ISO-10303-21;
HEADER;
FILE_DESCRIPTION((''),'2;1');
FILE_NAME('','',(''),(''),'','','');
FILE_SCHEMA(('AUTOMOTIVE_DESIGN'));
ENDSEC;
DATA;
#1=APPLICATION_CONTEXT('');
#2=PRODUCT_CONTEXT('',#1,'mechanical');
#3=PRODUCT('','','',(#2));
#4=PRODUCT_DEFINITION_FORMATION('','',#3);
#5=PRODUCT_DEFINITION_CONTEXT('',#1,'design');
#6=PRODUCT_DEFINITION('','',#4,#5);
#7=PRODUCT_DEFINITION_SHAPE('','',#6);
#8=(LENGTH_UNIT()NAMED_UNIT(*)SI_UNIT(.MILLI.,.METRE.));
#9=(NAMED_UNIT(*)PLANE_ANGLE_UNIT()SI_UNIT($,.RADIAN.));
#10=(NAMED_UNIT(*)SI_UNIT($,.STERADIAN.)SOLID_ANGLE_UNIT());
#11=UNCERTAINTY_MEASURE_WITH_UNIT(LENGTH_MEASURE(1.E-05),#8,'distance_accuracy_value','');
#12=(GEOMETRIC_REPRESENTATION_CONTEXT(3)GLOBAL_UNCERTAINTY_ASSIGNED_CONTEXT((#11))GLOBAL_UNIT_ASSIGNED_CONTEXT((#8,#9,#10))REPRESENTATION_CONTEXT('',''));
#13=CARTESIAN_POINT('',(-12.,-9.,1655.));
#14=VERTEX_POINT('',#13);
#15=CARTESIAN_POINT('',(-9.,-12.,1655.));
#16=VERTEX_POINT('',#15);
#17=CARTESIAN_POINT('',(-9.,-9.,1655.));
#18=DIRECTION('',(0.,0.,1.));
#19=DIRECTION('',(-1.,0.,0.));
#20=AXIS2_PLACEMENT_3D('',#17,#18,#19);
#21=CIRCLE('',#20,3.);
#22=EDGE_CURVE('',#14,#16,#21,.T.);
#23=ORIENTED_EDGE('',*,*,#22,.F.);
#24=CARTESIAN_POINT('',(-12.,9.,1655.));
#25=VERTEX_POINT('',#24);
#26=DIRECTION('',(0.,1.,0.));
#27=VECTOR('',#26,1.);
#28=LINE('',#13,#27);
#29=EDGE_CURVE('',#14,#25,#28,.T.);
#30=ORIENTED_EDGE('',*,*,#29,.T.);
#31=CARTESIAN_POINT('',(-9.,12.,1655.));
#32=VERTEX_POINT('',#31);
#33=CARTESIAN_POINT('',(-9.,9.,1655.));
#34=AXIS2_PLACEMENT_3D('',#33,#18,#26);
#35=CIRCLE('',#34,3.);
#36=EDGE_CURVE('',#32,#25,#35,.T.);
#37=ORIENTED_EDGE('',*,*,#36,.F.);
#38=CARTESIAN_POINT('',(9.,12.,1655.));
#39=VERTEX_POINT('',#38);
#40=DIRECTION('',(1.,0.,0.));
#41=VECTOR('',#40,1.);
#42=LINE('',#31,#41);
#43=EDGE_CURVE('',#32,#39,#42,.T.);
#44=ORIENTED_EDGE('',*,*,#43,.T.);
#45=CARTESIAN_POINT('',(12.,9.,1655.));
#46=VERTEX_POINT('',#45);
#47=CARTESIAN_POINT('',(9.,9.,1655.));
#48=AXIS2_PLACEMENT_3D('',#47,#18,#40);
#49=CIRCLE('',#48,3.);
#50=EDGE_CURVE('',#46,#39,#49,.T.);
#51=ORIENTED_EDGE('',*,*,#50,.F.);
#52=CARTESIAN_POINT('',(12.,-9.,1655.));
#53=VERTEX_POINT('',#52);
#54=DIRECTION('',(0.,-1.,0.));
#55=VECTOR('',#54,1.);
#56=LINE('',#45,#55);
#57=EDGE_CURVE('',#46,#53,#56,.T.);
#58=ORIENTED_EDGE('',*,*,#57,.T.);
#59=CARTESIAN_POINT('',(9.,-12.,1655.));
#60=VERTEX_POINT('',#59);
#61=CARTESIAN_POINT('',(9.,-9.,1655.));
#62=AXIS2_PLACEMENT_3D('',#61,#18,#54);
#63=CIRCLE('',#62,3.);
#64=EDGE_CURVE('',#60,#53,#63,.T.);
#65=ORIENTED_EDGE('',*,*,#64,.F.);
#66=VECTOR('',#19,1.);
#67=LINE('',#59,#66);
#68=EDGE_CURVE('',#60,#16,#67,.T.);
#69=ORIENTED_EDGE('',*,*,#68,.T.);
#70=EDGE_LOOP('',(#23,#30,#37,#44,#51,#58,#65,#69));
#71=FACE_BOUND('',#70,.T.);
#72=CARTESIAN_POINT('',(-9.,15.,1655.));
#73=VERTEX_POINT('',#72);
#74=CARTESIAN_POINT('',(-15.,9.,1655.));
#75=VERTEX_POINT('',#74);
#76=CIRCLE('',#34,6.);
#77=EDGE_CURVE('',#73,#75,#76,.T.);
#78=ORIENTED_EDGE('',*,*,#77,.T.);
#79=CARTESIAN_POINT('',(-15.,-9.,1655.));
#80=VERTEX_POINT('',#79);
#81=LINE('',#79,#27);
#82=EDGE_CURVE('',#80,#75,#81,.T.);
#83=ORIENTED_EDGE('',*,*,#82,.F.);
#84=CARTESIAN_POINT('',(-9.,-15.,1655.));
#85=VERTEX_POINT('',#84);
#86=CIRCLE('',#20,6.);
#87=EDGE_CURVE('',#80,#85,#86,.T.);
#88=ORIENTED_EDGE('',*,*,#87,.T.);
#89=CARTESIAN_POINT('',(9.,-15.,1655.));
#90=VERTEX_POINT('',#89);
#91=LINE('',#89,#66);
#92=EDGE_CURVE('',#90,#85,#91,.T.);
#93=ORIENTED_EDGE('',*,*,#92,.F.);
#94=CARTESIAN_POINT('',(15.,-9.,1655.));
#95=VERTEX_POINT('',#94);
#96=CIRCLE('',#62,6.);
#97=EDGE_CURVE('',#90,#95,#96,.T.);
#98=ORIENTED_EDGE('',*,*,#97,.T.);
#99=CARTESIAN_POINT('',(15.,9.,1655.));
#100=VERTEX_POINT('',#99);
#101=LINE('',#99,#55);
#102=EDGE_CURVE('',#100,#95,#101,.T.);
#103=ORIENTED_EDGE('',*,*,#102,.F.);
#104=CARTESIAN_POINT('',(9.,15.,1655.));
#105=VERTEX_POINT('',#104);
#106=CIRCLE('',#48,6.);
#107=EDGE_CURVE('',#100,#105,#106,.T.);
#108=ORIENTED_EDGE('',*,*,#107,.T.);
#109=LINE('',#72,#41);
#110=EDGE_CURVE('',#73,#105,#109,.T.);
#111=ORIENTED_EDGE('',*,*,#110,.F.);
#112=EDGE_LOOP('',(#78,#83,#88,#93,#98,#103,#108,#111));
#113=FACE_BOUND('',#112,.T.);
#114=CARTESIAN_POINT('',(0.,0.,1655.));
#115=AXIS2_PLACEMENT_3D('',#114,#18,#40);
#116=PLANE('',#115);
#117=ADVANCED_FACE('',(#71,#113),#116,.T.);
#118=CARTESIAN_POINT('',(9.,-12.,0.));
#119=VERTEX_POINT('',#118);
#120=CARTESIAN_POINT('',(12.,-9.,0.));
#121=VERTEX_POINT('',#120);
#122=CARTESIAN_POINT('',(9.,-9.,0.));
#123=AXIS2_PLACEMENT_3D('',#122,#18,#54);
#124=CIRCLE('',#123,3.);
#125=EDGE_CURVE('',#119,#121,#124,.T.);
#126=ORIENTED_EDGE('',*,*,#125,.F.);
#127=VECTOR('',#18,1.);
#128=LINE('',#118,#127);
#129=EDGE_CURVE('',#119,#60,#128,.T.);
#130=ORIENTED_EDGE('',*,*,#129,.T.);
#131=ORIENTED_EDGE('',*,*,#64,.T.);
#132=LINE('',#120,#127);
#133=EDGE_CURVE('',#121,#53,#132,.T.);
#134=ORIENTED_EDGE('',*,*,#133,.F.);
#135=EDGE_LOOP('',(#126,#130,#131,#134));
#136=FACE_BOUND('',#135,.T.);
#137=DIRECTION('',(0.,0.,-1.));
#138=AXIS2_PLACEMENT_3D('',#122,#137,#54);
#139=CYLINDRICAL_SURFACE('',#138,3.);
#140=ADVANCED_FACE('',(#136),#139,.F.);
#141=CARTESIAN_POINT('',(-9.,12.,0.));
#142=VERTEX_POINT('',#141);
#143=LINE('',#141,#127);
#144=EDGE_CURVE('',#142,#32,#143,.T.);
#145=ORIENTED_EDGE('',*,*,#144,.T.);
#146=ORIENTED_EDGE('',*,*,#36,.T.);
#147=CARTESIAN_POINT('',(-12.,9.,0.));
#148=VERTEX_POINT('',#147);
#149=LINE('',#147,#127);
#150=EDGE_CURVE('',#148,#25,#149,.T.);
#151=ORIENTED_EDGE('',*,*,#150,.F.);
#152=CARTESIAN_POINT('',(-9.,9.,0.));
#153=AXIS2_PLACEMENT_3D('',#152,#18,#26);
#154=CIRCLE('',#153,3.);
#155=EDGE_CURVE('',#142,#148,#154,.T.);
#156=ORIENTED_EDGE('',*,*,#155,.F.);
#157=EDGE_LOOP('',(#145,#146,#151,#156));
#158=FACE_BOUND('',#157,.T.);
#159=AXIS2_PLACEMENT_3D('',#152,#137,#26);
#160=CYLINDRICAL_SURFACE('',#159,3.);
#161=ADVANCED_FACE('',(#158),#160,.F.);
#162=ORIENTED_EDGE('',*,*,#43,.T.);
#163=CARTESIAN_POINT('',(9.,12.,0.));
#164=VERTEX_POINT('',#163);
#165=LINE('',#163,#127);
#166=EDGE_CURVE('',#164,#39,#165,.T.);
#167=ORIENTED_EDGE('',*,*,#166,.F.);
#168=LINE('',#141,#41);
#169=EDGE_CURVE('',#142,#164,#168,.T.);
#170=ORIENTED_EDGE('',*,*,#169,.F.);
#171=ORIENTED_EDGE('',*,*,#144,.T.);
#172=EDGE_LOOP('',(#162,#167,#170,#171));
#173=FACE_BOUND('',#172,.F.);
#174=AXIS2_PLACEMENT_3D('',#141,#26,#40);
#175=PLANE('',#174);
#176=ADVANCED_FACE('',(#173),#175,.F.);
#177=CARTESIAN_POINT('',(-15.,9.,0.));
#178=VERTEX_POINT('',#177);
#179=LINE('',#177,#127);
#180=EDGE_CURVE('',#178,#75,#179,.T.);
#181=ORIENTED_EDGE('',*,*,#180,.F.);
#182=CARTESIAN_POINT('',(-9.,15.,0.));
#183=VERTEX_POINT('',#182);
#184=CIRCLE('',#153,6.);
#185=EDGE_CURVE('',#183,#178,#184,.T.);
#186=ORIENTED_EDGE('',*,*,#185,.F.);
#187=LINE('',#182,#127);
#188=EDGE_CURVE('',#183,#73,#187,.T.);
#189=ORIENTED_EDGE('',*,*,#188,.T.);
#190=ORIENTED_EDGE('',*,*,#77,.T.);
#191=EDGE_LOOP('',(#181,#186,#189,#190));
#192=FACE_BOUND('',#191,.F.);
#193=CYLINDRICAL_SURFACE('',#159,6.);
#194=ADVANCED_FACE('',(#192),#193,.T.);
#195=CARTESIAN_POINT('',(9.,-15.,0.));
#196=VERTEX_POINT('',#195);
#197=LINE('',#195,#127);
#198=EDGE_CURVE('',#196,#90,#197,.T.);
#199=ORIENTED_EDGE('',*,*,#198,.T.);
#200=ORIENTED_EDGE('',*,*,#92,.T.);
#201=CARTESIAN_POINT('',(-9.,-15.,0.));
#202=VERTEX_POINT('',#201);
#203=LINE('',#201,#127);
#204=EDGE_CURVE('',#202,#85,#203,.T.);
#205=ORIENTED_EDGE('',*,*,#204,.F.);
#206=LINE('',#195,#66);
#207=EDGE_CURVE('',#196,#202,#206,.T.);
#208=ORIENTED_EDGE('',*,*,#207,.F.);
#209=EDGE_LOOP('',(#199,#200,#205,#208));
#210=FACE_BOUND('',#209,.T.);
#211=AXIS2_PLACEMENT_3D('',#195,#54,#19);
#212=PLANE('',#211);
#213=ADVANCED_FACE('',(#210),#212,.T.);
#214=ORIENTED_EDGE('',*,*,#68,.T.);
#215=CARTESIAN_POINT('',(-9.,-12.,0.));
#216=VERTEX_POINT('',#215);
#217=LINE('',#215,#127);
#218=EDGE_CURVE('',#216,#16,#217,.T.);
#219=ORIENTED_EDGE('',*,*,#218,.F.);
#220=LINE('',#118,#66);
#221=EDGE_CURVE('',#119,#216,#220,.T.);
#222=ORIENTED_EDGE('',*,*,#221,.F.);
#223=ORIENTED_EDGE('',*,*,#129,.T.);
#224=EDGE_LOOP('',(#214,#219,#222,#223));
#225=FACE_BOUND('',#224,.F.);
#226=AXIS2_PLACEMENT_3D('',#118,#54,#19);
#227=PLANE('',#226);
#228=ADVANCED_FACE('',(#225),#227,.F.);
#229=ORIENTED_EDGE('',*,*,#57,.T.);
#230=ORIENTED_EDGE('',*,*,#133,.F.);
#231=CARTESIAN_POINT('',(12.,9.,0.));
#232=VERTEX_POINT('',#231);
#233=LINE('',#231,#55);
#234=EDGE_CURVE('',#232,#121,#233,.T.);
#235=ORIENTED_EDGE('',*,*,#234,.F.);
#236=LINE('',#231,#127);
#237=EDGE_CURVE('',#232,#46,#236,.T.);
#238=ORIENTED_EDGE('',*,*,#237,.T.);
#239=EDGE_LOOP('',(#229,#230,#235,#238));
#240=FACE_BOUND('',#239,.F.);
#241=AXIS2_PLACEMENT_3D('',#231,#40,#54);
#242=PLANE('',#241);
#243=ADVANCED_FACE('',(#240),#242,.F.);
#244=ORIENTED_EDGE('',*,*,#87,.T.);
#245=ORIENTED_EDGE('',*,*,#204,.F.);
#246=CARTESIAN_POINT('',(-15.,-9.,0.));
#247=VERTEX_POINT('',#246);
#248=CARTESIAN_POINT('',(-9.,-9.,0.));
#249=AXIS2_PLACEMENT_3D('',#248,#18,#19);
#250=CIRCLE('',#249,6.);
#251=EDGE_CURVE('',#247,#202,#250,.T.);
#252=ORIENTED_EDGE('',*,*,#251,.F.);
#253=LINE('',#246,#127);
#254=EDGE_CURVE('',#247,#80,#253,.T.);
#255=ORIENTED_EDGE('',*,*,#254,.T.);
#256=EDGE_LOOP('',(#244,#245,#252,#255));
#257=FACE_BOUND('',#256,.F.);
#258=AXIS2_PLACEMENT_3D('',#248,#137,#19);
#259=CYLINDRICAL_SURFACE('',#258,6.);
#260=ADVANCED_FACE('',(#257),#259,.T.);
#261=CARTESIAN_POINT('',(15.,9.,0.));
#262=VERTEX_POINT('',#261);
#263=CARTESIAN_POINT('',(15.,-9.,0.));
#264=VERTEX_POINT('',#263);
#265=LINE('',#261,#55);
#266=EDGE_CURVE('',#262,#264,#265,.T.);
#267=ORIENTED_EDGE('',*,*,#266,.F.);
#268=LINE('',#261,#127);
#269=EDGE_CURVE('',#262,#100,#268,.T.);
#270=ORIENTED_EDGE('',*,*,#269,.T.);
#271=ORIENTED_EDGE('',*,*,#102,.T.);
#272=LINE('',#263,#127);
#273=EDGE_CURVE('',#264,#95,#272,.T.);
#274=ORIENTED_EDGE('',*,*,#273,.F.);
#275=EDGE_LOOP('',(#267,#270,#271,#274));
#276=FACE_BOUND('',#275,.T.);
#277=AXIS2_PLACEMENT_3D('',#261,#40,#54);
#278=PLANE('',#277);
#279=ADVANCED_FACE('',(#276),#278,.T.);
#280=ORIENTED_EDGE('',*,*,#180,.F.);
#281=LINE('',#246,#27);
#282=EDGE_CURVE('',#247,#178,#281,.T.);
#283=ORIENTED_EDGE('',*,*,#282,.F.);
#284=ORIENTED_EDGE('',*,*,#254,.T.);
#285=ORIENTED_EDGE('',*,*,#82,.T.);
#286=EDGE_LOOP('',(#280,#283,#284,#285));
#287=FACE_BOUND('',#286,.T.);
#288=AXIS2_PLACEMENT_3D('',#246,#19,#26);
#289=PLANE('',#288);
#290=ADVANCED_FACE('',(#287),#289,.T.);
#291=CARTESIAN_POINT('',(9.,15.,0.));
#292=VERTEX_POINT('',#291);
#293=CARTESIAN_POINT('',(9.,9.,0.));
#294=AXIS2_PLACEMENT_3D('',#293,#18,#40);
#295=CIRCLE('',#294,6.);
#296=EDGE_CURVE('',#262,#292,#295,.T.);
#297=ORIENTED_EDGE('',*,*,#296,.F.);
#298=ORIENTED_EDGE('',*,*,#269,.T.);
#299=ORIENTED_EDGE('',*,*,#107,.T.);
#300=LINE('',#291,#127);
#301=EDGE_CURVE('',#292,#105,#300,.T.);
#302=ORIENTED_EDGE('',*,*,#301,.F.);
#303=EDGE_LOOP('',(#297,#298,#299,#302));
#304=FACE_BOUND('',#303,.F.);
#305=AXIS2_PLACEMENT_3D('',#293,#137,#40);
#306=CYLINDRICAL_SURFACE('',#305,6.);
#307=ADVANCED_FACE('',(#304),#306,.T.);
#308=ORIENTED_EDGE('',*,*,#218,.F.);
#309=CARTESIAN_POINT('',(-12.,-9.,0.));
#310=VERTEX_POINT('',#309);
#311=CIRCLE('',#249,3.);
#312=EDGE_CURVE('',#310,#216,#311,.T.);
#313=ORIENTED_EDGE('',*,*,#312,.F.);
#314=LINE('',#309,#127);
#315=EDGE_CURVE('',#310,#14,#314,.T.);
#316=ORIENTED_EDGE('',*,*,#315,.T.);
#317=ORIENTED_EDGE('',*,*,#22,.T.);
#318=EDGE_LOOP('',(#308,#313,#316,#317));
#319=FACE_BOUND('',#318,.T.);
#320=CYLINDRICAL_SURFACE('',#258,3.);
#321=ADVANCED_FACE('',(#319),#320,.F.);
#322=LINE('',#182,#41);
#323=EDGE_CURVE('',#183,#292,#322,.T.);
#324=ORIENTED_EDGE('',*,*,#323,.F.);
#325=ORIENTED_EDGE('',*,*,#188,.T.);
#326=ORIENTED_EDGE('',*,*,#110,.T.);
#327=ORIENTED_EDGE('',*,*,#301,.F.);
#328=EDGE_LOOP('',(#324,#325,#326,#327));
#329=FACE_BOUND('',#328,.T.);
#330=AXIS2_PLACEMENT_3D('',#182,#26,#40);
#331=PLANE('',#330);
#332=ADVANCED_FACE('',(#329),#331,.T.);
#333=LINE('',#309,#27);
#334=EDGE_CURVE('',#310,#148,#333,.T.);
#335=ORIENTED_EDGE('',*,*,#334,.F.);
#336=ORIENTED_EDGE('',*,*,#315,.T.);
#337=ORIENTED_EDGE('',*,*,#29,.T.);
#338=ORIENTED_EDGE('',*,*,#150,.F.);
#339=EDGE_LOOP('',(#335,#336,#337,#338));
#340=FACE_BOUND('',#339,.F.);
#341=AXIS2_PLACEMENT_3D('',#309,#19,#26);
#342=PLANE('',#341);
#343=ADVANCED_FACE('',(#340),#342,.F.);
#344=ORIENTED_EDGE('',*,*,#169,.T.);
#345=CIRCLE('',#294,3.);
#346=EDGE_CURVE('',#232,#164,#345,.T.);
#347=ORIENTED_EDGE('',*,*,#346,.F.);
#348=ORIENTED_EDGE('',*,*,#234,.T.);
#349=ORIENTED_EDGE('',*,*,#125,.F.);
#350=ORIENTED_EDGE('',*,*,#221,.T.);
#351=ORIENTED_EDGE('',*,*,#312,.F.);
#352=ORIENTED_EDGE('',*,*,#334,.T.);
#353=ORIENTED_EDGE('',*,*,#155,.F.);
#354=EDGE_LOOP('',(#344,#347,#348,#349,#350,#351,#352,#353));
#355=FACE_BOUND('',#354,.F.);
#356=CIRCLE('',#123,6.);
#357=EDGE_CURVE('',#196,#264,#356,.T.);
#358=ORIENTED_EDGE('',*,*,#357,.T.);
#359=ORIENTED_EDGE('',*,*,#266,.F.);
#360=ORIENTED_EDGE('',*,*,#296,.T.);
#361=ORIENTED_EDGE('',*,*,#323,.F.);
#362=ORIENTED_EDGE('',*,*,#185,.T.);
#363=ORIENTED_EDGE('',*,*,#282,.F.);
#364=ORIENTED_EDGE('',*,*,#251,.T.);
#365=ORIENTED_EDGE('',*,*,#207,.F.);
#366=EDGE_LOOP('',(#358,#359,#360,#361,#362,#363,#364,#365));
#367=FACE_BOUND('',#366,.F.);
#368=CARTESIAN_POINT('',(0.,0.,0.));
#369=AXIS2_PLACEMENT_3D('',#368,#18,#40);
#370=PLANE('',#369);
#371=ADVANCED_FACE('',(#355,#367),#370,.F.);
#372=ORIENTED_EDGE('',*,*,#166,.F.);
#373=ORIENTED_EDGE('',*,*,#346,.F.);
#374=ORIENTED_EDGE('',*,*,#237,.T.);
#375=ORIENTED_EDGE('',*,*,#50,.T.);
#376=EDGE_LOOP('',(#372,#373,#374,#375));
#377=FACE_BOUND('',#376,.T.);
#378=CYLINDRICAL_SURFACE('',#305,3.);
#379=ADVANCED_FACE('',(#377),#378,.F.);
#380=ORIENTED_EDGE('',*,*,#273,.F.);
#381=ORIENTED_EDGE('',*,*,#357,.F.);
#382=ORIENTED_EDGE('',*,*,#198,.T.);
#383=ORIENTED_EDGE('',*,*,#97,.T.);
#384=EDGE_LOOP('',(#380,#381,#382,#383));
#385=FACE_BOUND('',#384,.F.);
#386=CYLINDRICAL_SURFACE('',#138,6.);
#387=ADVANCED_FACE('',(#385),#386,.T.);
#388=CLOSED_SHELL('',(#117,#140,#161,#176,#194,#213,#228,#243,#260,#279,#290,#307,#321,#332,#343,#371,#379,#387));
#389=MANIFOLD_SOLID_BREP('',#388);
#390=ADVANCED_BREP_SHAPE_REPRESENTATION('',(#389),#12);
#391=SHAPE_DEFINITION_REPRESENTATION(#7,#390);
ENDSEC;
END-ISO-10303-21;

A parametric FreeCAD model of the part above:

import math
import FreeCAD as App
import Part
import Sketcher

doc = App.newDocument("Part")
params = doc.addObject("Spreadsheet::Sheet", "Params")
for row, (alias, value) in enumerate([
    ("sketch1_radius", "6 mm"),
    ("sketch1_radius2", "3 mm"),
    ("pad1_length", "1655 mm"),
], start=1):
    params.set(f"A{row}", alias)
    params.set(f"B{row}", "=" + value)
    params.setAlias(f"B{row}", alias)

body = doc.addObject("PartDesign::Body", "Body")

sketch1 = body.newObject("Sketcher::SketchObject", "Sketch")
sketch1.AttachmentSupport = (doc.getObject("XY_Plane"), [""])
sketch1.MapMode = "FlatFace"
sketch1.addGeometry([
    Part.LineSegment(App.Vector(-15, 9, 0), App.Vector(-15, -9, 0)),
    Part.ArcOfCircle(Part.Circle(App.Vector(-9, -9, 0), App.Vector(0, 0, 1), 6), math.radians(180), math.radians(270)),
    Part.LineSegment(App.Vector(-9, -15, 0), App.Vector(9, -15, 0)),
    Part.ArcOfCircle(Part.Circle(App.Vector(9, -9, 0), App.Vector(0, 0, 1), 6), math.radians(-90), math.radians(0)),
    Part.LineSegment(App.Vector(15, -9, 0), App.Vector(15, 9, 0)),
    Part.ArcOfCircle(Part.Circle(App.Vector(9, 9, 0), App.Vector(0, 0, 1), 6), math.radians(0), math.radians(90)),
    Part.LineSegment(App.Vector(9, 15, 0), App.Vector(-9, 15, 0)),
    Part.ArcOfCircle(Part.Circle(App.Vector(-9, 9, 0), App.Vector(0, 0, 1), 6), math.radians(90), math.radians(180)),
    Part.ArcOfCircle(Part.Circle(App.Vector(-9, 9, 0), App.Vector(0, 0, 1), 3), math.radians(90), math.radians(180)),
    Part.LineSegment(App.Vector(-9, 12, 0), App.Vector(9, 12, 0)),
    Part.ArcOfCircle(Part.Circle(App.Vector(9, 9, 0), App.Vector(0, 0, 1), 3), math.radians(0), math.radians(90)),
    Part.LineSegment(App.Vector(12, 9, 0), App.Vector(12, -9, 0)),
    Part.ArcOfCircle(Part.Circle(App.Vector(9, -9, 0), App.Vector(0, 0, 1), 3), math.radians(-90), math.radians(0)),
    Part.LineSegment(App.Vector(9, -12, 0), App.Vector(-9, -12, 0)),
    Part.ArcOfCircle(Part.Circle(App.Vector(-9, -9, 0), App.Vector(0, 0, 1), 3), math.radians(180), math.radians(270)),
    Part.LineSegment(App.Vector(-12, -9, 0), App.Vector(-12, 9, 0)),
], False)
sketch1.addConstraint([
    Sketcher.Constraint("Tangent", 0, 2, 1, 1),
    Sketcher.Constraint("Tangent", 1, 2, 2, 1),
    Sketcher.Constraint("Tangent", 2, 2, 3, 1),
    Sketcher.Constraint("Tangent", 3, 2, 4, 1),
    Sketcher.Constraint("Tangent", 4, 2, 5, 1),
    Sketcher.Constraint("Tangent", 5, 2, 6, 1),
    Sketcher.Constraint("Tangent", 6, 2, 7, 1),
    Sketcher.Constraint("Tangent", 7, 2, 0, 1),
    Sketcher.Constraint("Tangent", 8, 1, 9, 1),
    Sketcher.Constraint("Tangent", 9, 2, 10, 2),
    Sketcher.Constraint("Tangent", 10, 1, 11, 1),
    Sketcher.Constraint("Tangent", 11, 2, 12, 2),
    Sketcher.Constraint("Tangent", 12, 1, 13, 1),
    Sketcher.Constraint("Tangent", 13, 2, 14, 2),
    Sketcher.Constraint("Tangent", 14, 1, 15, 1),
    Sketcher.Constraint("Tangent", 15, 2, 8, 2),
    Sketcher.Constraint("Vertical", 0),
    Sketcher.Constraint("Horizontal", 2),
    Sketcher.Constraint("Vertical", 4),
    Sketcher.Constraint("Horizontal", 6),
    Sketcher.Constraint("Horizontal", 9),
    Sketcher.Constraint("Vertical", 11),
    Sketcher.Constraint("Horizontal", 13),
    Sketcher.Constraint("Vertical", 15),
    Sketcher.Constraint("Coincident", 8, 3, 7, 3),
    Sketcher.Constraint("Coincident", 10, 3, 5, 3),
    Sketcher.Constraint("Coincident", 12, 3, 3, 3),
    Sketcher.Constraint("Equal", 1, 3),
    Sketcher.Constraint("Equal", 3, 5),
    Sketcher.Constraint("Equal", 5, 7),
    Sketcher.Constraint("Equal", 12, 14),
    Sketcher.Constraint("Symmetric", 1, 3, 5, 3, -1, 1),
    Sketcher.Constraint("Equal", 13, 0),
    Sketcher.Constraint("Radius", 1, 6.0),
    Sketcher.Constraint("Radius", 8, 3.0),
    Sketcher.Constraint("DistanceX", 0, 2, -1, 1, 15.0),
])
sketch1.setExpression("Constraints[33]", "Params.sketch1_radius")
sketch1.setExpression("Constraints[34]", "Params.sketch1_radius2")
pad1 = body.newObject("PartDesign::Pad", "Pad")
pad1.Profile = sketch1
pad1.setExpression("Length", "Params.pad1_length")

doc.recompute()
